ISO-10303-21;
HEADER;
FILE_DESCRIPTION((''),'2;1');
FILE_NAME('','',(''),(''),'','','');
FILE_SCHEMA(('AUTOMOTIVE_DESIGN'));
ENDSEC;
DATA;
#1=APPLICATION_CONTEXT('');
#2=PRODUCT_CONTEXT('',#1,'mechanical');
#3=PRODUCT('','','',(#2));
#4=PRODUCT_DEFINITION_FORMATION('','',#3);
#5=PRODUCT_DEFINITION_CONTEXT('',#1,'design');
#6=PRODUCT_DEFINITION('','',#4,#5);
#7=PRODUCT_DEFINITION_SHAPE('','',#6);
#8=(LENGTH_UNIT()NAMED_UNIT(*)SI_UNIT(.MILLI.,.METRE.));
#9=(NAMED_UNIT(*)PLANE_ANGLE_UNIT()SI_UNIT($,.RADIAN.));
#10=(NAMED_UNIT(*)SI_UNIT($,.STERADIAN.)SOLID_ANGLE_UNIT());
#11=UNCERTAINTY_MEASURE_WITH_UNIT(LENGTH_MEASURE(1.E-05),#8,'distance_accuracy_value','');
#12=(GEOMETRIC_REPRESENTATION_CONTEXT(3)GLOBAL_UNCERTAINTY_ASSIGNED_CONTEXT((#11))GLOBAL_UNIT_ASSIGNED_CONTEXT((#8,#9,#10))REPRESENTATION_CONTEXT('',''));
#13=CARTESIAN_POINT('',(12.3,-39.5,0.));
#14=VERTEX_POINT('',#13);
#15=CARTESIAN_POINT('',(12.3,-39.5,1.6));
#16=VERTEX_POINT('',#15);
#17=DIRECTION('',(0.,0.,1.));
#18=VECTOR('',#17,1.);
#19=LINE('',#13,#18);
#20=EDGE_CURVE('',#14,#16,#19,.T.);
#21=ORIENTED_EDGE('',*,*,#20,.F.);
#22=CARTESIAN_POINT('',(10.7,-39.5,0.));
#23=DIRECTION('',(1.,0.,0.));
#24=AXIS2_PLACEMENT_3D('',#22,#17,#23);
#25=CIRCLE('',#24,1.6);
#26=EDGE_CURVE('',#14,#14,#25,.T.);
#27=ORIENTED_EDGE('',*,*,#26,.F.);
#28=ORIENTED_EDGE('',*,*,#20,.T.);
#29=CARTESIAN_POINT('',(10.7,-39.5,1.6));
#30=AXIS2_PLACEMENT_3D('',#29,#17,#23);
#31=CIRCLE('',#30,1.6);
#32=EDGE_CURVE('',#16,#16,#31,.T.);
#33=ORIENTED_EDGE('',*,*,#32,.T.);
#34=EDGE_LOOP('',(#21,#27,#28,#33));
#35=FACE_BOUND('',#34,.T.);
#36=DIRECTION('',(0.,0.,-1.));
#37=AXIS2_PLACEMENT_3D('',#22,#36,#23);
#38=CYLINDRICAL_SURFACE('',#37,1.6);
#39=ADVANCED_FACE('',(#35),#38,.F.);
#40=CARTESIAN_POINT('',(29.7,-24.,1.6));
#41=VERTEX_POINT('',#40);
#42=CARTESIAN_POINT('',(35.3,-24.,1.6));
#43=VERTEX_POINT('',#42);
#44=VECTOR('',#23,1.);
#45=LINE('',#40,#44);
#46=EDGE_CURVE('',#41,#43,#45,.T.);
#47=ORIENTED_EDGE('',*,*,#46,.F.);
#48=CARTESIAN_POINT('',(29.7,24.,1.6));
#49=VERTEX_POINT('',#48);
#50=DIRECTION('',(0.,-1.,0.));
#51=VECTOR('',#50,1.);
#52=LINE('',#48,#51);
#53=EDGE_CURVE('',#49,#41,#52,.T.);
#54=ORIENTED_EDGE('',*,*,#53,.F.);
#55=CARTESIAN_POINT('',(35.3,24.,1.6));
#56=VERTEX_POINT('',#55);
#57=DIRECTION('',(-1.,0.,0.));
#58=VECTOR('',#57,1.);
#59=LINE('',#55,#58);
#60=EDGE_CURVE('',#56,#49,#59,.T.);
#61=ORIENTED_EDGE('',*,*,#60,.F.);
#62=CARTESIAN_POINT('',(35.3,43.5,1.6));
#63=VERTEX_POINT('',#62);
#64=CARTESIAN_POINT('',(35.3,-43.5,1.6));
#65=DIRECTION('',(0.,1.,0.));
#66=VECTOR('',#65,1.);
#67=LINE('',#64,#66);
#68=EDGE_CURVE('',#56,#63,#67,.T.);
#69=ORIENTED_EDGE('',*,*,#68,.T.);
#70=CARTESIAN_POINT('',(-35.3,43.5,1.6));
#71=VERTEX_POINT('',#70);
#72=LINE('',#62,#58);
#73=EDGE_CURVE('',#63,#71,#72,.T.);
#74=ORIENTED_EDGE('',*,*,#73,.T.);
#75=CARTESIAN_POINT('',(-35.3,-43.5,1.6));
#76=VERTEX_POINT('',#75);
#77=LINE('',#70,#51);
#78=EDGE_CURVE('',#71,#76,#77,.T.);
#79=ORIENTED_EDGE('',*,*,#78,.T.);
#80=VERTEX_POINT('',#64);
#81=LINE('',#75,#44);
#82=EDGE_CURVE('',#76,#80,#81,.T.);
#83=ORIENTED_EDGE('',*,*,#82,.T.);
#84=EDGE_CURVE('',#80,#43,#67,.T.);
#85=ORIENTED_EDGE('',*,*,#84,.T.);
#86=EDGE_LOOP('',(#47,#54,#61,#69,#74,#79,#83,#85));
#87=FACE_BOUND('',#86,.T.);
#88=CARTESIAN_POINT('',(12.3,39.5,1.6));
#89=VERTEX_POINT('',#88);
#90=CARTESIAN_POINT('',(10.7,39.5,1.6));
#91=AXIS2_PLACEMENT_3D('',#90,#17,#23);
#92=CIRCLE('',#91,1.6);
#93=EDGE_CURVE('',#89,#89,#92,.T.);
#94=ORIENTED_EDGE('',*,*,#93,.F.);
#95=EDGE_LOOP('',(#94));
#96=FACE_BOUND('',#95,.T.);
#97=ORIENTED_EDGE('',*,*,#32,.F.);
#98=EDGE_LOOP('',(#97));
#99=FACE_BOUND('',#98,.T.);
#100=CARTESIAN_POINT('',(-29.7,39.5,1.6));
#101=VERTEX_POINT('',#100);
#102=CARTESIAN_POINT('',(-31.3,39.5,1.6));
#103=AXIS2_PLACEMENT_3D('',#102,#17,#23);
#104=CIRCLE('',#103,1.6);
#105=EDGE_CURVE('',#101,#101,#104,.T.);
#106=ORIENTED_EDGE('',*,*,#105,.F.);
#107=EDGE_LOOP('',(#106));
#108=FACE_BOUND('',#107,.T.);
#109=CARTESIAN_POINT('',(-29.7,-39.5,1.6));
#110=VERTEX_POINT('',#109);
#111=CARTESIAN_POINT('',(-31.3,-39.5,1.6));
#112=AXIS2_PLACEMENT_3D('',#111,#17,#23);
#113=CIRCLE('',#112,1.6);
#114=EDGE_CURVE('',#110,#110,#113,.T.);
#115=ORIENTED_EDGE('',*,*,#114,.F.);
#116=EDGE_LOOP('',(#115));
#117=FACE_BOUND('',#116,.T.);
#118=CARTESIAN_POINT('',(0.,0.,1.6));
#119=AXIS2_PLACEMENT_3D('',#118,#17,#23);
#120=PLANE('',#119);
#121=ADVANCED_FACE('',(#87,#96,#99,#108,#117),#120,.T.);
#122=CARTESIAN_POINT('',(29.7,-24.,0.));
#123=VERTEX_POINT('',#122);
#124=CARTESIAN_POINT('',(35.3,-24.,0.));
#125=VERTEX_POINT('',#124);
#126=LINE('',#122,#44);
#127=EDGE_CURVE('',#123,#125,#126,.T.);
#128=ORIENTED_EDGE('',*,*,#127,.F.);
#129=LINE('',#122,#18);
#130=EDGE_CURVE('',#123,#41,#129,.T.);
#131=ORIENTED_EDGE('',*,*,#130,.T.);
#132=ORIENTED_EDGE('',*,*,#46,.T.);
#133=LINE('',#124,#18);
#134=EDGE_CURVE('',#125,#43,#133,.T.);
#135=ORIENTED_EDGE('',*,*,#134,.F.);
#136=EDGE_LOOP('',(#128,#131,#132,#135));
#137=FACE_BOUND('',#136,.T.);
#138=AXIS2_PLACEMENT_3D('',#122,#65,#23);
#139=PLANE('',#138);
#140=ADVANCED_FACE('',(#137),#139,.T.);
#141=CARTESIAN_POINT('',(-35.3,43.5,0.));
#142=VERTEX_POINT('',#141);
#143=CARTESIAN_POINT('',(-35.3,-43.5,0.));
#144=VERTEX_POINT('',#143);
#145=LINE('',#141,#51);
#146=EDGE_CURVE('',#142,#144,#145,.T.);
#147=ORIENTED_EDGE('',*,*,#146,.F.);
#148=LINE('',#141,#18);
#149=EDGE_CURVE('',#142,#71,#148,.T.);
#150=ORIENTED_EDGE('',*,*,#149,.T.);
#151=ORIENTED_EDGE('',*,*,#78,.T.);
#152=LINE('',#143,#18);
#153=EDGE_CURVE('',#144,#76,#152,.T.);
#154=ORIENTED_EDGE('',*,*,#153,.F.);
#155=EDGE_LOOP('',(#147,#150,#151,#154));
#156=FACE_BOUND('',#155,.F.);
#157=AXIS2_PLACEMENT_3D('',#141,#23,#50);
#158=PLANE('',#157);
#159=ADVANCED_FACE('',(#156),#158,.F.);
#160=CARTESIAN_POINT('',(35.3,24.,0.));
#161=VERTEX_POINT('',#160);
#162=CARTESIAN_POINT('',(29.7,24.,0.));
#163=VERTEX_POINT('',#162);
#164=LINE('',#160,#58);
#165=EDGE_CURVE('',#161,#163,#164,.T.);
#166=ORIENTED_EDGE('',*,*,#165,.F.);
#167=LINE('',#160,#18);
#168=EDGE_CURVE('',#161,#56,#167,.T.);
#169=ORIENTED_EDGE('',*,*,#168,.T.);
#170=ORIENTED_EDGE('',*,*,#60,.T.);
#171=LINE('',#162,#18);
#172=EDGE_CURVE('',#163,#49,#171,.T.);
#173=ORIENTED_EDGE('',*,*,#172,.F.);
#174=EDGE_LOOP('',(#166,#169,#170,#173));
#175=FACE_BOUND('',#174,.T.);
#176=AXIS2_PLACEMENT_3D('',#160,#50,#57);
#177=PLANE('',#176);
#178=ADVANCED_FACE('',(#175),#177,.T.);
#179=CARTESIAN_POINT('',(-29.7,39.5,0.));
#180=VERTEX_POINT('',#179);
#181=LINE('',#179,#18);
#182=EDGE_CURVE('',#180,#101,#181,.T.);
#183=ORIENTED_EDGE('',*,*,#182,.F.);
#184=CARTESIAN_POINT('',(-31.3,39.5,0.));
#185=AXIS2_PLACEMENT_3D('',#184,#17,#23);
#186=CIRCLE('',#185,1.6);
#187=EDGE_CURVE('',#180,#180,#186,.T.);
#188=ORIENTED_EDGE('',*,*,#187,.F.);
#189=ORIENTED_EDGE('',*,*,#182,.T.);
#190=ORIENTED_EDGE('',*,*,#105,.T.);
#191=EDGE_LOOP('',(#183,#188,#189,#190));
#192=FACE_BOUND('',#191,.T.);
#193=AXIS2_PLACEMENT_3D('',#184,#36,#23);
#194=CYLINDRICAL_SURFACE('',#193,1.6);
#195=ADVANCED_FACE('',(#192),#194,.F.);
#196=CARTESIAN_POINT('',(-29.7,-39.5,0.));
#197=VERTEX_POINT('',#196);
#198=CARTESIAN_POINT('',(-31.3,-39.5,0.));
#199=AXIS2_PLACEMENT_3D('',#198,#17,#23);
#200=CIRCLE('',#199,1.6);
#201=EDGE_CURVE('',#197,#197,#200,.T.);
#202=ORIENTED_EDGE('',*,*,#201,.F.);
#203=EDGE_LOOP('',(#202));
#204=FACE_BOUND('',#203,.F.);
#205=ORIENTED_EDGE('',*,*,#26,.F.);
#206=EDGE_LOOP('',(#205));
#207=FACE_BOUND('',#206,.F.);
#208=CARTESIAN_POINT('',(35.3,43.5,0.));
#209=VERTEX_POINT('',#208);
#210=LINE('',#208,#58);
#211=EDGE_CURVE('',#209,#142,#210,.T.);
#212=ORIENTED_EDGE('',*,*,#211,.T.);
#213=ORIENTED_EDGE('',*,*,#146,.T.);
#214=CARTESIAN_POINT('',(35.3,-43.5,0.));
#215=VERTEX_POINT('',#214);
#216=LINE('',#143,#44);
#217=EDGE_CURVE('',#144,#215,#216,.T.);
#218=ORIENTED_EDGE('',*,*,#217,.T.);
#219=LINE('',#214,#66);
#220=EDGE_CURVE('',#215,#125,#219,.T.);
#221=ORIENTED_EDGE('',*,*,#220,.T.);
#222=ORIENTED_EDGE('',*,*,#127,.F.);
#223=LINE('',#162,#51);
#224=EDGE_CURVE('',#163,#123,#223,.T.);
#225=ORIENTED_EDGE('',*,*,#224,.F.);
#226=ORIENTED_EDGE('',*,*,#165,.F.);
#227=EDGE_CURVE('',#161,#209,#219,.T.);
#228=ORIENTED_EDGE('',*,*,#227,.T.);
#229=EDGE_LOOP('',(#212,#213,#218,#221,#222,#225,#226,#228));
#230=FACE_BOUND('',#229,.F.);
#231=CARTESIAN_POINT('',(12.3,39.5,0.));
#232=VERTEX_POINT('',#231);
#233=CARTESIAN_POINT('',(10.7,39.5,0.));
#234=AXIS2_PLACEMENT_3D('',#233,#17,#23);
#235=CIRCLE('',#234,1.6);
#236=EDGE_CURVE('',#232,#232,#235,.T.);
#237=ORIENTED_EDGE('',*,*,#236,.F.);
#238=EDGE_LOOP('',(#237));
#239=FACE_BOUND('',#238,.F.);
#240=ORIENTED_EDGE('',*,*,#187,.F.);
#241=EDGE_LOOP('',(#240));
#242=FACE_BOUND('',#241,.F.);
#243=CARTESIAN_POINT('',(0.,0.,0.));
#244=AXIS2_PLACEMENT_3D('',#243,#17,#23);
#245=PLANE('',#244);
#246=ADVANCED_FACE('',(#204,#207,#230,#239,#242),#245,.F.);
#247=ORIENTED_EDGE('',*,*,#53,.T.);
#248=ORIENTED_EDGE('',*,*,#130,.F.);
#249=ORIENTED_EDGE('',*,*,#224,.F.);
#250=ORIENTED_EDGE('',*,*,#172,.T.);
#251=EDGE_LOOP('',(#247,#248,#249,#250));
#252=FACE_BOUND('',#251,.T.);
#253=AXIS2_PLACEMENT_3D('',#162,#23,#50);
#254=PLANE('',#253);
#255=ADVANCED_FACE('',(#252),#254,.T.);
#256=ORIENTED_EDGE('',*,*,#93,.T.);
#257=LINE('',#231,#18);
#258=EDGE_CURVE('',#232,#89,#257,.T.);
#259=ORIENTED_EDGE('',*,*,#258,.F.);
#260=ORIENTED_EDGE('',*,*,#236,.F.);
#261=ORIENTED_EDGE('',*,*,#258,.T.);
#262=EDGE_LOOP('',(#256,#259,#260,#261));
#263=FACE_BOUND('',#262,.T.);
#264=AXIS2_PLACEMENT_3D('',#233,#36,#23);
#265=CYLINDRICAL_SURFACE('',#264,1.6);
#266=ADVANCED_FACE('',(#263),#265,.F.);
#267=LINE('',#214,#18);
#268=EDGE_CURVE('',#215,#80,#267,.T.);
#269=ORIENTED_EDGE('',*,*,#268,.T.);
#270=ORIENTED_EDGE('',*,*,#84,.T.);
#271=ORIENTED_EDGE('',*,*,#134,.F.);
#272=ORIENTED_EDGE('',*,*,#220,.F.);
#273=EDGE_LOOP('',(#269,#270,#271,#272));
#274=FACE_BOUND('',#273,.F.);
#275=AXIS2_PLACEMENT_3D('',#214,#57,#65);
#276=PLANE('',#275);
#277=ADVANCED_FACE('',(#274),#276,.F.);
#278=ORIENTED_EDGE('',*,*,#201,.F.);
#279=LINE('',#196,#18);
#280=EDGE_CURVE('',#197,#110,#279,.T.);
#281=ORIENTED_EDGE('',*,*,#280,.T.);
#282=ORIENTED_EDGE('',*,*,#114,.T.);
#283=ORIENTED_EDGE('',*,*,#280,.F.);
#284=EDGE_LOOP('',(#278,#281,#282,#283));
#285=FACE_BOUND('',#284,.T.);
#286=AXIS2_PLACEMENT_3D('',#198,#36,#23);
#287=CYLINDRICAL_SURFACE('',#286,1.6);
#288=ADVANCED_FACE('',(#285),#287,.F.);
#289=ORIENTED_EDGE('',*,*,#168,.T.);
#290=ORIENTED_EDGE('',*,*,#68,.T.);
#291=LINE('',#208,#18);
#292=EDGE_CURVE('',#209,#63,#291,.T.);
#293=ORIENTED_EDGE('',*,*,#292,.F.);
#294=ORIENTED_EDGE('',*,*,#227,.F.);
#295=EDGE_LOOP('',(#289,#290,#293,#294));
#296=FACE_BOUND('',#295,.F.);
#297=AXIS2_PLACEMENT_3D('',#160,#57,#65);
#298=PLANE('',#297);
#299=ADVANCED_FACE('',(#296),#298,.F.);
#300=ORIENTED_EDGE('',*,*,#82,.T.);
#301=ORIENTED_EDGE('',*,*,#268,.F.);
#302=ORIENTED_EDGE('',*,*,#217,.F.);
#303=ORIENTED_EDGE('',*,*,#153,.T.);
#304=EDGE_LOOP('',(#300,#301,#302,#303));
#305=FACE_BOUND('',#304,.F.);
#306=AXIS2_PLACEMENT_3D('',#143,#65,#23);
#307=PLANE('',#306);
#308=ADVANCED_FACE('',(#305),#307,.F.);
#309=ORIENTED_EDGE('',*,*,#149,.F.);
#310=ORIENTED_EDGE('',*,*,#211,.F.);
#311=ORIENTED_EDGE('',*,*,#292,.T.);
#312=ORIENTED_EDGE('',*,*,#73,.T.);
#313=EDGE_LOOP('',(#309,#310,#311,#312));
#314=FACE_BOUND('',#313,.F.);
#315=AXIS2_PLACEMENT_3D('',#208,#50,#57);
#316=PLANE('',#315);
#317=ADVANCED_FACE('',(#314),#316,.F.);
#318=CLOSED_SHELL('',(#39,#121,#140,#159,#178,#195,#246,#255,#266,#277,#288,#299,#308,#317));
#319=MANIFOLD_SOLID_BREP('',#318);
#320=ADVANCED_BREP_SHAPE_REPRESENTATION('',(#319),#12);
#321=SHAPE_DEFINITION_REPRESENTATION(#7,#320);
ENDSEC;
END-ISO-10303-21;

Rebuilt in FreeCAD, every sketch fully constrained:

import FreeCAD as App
import Part
import Sketcher
from FreeCAD import Vector
Q = App.Units.Quantity

doc = App.newDocument("Part")
body = doc.addObject("PartDesign::Body", "Body")

sketch1 = body.newObject("Sketcher::SketchObject", "Sketch")
sketch1.AttachmentSupport = (doc.getObject("XY_Plane"), [""])
sketch1.MapMode = "FlatFace"
sketch1.addGeometry(Part.LineSegment(Vector(35.3, 24, 0), Vector(35.3, 43.5, 0)), False)
sketch1.addGeometry(Part.LineSegment(Vector(35.3, 43.5, 0), Vector(-35.3, 43.5, 0)), False)
sketch1.addGeometry(Part.LineSegment(Vector(-35.3, 43.5, 0), Vector(-35.3, -43.5, 0)), False)
sketch1.addGeometry(Part.LineSegment(Vector(-35.3, -43.5, 0), Vector(35.3, -43.5, 0)), False)
sketch1.addGeometry(Part.LineSegment(Vector(35.3, -43.5, 0), Vector(35.3, -24, 0)), False)
sketch1.addGeometry(Part.LineSegment(Vector(35.3, -24, 0), Vector(29.7, -24, 0)), False)
sketch1.addGeometry(Part.LineSegment(Vector(29.7, -24, 0), Vector(29.7, 24, 0)), False)
sketch1.addGeometry(Part.LineSegment(Vector(29.7, 24, 0), Vector(35.3, 24, 0)), False)
sketch1.addGeometry(Part.Circle(Vector(-31.3, -39.5, 0), Vector(0, 0, 1), 1.6), False)
sketch1.addGeometry(Part.Circle(Vector(10.7, -39.5, 0), Vector(0, 0, 1), 1.6), False)
sketch1.addGeometry(Part.Circle(Vector(-31.3, 39.5, 0), Vector(0, 0, 1), 1.6), False)
sketch1.addGeometry(Part.Circle(Vector(10.7, 39.5, 0), Vector(0, 0, 1), 1.6), False)
sketch1.addConstraint(Sketcher.Constraint("Coincident", 0, 2, 1, 1))
sketch1.addConstraint(Sketcher.Constraint("Coincident", 1, 2, 2, 1))
sketch1.addConstraint(Sketcher.Constraint("Coincident", 2, 2, 3, 1))
sketch1.addConstraint(Sketcher.Constraint("Coincident", 3, 2, 4, 1))
sketch1.addConstraint(Sketcher.Constraint("Coincident", 4, 2, 5, 1))
sketch1.addConstraint(Sketcher.Constraint("Coincident", 5, 2, 6, 1))
sketch1.addConstraint(Sketcher.Constraint("Coincident", 6, 2, 7, 1))
sketch1.addConstraint(Sketcher.Constraint("Coincident", 7, 2, 0, 1))
sketch1.addConstraint(Sketcher.Constraint("Vertical", 0))
sketch1.addConstraint(Sketcher.Constraint("Horizontal", 1))
sketch1.addConstraint(Sketcher.Constraint("Vertical", 2))
sketch1.addConstraint(Sketcher.Constraint("Horizontal", 3))
sketch1.addConstraint(Sketcher.Constraint("Vertical", 4))
sketch1.addConstraint(Sketcher.Constraint("Horizontal", 5))
sketch1.addConstraint(Sketcher.Constraint("Vertical", 6))
sketch1.addConstraint(Sketcher.Constraint("Horizontal", 7))
sketch1.addConstraint(Sketcher.Constraint("Equal", 8, 9))
sketch1.addConstraint(Sketcher.Constraint("Equal", 9, 10))
sketch1.addConstraint(Sketcher.Constraint("Equal", 10, 11))
sketch1.addConstraint(Sketcher.Constraint("Symmetric", 0, 2, 2, 2, -1, 1))
sketch1.addConstraint(Sketcher.Constraint("Symmetric", 8, 3, 10, 3, -1))
sketch1.addConstraint(Sketcher.Constraint("Symmetric", 9, 3, 11, 3, -1))
sketch1.addConstraint(Sketcher.Constraint("Symmetric", 4, 2, 7, 2, -1))
sketch1.addConstraint(Sketcher.Constraint("Horizontal", 8, 3, 9, 3))
sketch1.addConstraint(Sketcher.Constraint("Diameter", 8, Q("3.2 mm")))
sketch1.addConstraint(Sketcher.Constraint("DistanceY", 2, 2, 2, 1, Q("87 mm")))
sketch1.addConstraint(Sketcher.Constraint("DistanceY", 6, 1, 6, 2, Q("48 mm")))
sketch1.addConstraint(Sketcher.Constraint("DistanceX", 1, 2, 1, 1, Q("70.6 mm")))
sketch1.addConstraint(Sketcher.Constraint("DistanceY", 11, 3, 0, 2, Q("4 mm")))
sketch1.addConstraint(Sketcher.Constraint("DistanceX", 1, 2, 10, 3, Q("4 mm")))
sketch1.addConstraint(Sketcher.Constraint("DistanceX", 1, 2, 11, 3, Q("46 mm")))
sketch1.addConstraint(Sketcher.Constraint("DistanceX", 5, 2, 5, 1, Q("5.6 mm")))
pad1 = body.newObject("PartDesign::Pad", "Pad")
pad1.Profile = sketch1
pad1.Length = 1.6

doc.recompute()
